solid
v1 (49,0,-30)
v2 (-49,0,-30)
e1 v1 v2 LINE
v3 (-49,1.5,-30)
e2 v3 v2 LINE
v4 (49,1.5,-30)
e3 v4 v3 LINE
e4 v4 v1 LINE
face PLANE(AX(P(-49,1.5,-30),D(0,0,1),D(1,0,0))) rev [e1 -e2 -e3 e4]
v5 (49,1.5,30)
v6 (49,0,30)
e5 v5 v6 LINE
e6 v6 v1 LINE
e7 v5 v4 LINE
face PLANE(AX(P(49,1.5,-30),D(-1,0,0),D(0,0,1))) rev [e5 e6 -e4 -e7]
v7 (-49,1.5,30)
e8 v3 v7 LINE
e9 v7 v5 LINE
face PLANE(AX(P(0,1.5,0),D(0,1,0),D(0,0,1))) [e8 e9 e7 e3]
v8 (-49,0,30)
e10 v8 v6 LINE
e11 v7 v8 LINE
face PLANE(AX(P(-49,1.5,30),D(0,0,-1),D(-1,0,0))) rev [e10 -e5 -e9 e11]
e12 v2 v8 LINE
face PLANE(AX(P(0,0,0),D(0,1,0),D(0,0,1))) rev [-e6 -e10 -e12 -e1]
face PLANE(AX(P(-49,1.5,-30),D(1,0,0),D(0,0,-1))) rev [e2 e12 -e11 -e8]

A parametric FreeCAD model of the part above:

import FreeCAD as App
import Part
import Sketcher

V = App.Vector
Q = App.Units.Quantity


def add_polygon(sketch, points):
    """Adds a closed chain of lines whose ends are joined by coincident constraints."""
    first, n = sketch.GeometryCount, len(points)
    for a, b in zip(points, points[1:] + points[:1]):
        sketch.addGeometry(Part.LineSegment(App.Vector(*a, 0), App.Vector(*b, 0)), False)
    for i in range(n):
        sketch.addConstraint(Sketcher.Constraint("Coincident", first + i, 2, first + (i + 1) % n, 1))

doc = App.newDocument("Part")
body = doc.addObject("PartDesign::Body", "Body")

sketch1 = body.newObject("Sketcher::SketchObject", "Sketch")
sketch1.AttachmentSupport = (doc.getObject("XZ_Plane"), [""])
sketch1.MapMode = "FlatFace"
add_polygon(sketch1, [(-49, -30), (-49, 30), (49, 30), (49, -30)])
sketch1.addConstraint(Sketcher.Constraint("Vertical", 0))
sketch1.addConstraint(Sketcher.Constraint("Horizontal", 1))
sketch1.addConstraint(Sketcher.Constraint("Vertical", 2))
sketch1.addConstraint(Sketcher.Constraint("Horizontal", 3))
sketch1.addConstraint(Sketcher.Constraint("Symmetric", 0, 2, 2, 2, -1, 1))
sketch1.addConstraint(Sketcher.Constraint("DistanceX", 1, 1, 1, 2, Q("98 mm")))
sketch1.addConstraint(Sketcher.Constraint("DistanceY", 0, 1, 0, 2, Q("60 mm")))
pad1 = body.newObject("PartDesign::Pad", "Pad")
pad1.Profile = sketch1
pad1.Length = 1.5
pad1.Reversed = True

doc.recompute()
